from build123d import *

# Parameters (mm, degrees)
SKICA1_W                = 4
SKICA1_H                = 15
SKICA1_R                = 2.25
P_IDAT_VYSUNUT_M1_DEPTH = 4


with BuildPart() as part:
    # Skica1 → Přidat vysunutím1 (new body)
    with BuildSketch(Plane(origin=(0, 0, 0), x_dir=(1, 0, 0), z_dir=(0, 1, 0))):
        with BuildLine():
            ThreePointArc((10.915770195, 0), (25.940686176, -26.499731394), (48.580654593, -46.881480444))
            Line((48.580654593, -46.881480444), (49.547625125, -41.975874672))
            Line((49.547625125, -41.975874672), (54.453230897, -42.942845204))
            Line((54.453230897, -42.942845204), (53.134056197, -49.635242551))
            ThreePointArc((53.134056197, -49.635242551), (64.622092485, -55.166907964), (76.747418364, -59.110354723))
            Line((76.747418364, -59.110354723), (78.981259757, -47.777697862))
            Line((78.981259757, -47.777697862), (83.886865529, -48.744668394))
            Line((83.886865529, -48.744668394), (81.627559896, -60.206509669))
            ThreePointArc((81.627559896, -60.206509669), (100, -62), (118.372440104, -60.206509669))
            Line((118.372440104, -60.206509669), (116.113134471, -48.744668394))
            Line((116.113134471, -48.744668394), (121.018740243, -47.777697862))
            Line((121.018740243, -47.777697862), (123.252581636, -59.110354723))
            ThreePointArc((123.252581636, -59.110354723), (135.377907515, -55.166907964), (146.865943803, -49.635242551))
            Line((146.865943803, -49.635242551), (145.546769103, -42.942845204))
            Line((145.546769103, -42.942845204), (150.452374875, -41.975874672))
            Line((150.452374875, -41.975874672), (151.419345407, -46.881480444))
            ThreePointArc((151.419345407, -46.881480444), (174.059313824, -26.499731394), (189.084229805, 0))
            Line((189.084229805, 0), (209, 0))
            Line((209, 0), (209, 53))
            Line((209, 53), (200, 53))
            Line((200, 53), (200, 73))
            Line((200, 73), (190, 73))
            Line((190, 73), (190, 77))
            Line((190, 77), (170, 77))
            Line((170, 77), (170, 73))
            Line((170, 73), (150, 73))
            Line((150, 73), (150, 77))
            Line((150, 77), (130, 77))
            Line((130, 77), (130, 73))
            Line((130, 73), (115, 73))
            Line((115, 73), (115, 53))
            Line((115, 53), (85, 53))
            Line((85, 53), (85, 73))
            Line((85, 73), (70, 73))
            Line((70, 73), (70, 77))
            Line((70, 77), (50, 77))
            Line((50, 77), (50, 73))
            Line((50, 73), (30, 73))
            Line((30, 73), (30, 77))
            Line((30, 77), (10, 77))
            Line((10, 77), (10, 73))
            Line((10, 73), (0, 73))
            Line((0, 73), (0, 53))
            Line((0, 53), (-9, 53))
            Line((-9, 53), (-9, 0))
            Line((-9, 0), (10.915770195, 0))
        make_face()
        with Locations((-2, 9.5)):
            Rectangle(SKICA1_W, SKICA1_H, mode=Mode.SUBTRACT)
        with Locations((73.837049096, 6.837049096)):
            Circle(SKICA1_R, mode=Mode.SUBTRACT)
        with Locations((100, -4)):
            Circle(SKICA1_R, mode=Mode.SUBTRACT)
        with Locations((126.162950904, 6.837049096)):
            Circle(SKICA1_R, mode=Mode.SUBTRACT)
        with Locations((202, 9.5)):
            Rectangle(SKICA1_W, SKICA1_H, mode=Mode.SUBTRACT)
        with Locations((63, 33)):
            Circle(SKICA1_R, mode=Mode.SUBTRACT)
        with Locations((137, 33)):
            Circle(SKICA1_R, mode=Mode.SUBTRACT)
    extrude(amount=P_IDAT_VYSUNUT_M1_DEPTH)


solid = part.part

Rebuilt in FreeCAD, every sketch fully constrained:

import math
import FreeCAD as App
import Part
import Sketcher


def add_polygon(sketch, points):
    """Adds a closed chain of lines whose ends are joined by coincident constraints."""
    first, n = sketch.GeometryCount, len(points)
    for a, b in zip(points, points[1:] + points[:1]):
        sketch.addGeometry(Part.LineSegment(App.Vector(*a, 0), App.Vector(*b, 0)), False)
    for i in range(n):
        sketch.addConstraint(Sketcher.Constraint("Coincident", first + i, 2, first + (i + 1) % n, 1))

doc = App.newDocument("Part")
params = doc.addObject("Spreadsheet::Sheet", "Params")
for row, (alias, value) in enumerate([
    ("sketch1_radius", "95 mm"),
    ("sketch1_diameter", "4.5 mm"),
    ("sketch1_width", "9 mm"),
    ("sketch1_width2", "10 mm"),
    ("sketch1_width3", "20 mm"),
    ("pad1_length", "4 mm"),
], start=1):
    params.set(f"A{row}", alias)
    params.set(f"B{row}", "=" + value)
    params.setAlias(f"B{row}", alias)

body = doc.addObject("PartDesign::Body", "Body")

sketch1 = doc.addObject("Sketcher::SketchObject", "Sketch")
body.addObject(sketch1)
sketch1.AttachmentSupport = (doc.XZ_Plane, [""])
sketch1.MapMode = "FlatFace"
sketch1.addGeometry(Part.ArcOfCircle(Part.Circle(App.Vector(100, -33, 0), App.Vector(0, 0, 1), 95), math.radians(123), math.radians(160)), False)
sketch1.addGeometry(Part.LineSegment(App.Vector(48.6, 46.9, 0), App.Vector(49.5, 42, 0)), False)
sketch1.addGeometry(Part.LineSegment(App.Vector(49.5, 42, 0), App.Vector(54.5, 42.9, 0)), False)
sketch1.addGeometry(Part.LineSegment(App.Vector(54.5, 42.9, 0), App.Vector(53.1, 49.6, 0)), False)
sketch1.addGeometry(Part.ArcOfCircle(Part.Circle(App.Vector(100, -33, 0), App.Vector(0, 0, 1), 95), math.radians(104.17), math.radians(119.56)), False)
sketch1.addGeometry(Part.LineSegment(App.Vector(76.7, 59.1, 0), App.Vector(79, 47.8, 0)), False)
sketch1.addGeometry(Part.LineSegment(App.Vector(79, 47.8, 0), App.Vector(83.9, 48.7, 0)), False)
sketch1.addGeometry(Part.LineSegment(App.Vector(83.9, 48.7, 0), App.Vector(81.6, 60.2, 0)), False)
sketch1.addGeometry(Part.ArcOfCircle(Part.Circle(App.Vector(100, -33, 0), App.Vector(0, 0, 1), 95), math.radians(79), math.radians(101)), False)
sketch1.addGeometry(Part.LineSegment(App.Vector(118.4, 60.2, 0), App.Vector(116.1, 48.7, 0)), False)
sketch1.addGeometry(Part.LineSegment(App.Vector(116.1, 48.7, 0), App.Vector(121, 47.8, 0)), False)
sketch1.addGeometry(Part.LineSegment(App.Vector(121, 47.8, 0), App.Vector(123.3, 59.1, 0)), False)
sketch1.addGeometry(Part.ArcOfCircle(Part.Circle(App.Vector(100, -33, 0), App.Vector(0, 0, 1), 95), math.radians(60.44), math.radians(75.83)), False)
sketch1.addGeometry(Part.LineSegment(App.Vector(146.9, 49.6, 0), App.Vector(145.5, 42.9, 0)), False)
sketch1.addGeometry(Part.LineSegment(App.Vector(145.5, 42.9, 0), App.Vector(150.5, 42, 0)), False)
sketch1.addGeometry(Part.LineSegment(App.Vector(150.5, 42, 0), App.Vector(151.4, 46.9, 0)), False)
sketch1.addGeometry(Part.ArcOfCircle(Part.Circle(App.Vector(100, -33, 0), App.Vector(0, 0, 1), 95), math.radians(20), math.radians(57)), False)
sketch1.addGeometry(Part.LineSegment(App.Vector(189.1, 0, 0), App.Vector(209, 0, 0)), False)
sketch1.addGeometry(Part.LineSegment(App.Vector(209, 0, 0), App.Vector(209, -53, 0)), False)
sketch1.addGeometry(Part.LineSegment(App.Vector(209, -53, 0), App.Vector(200, -53, 0)), False)
sketch1.addGeometry(Part.LineSegment(App.Vector(200, -53, 0), App.Vector(200, -73, 0)), False)
sketch1.addGeometry(Part.LineSegment(App.Vector(200, -73, 0), App.Vector(190, -73, 0)), False)
sketch1.addGeometry(Part.LineSegment(App.Vector(190, -73, 0), App.Vector(190, -77, 0)), False)
sketch1.addGeometry(Part.LineSegment(App.Vector(190, -77, 0), App.Vector(170, -77, 0)), False)
sketch1.addGeometry(Part.LineSegment(App.Vector(170, -77, 0), App.Vector(170, -73, 0)), False)
sketch1.addGeometry(Part.LineSegment(App.Vector(170, -73, 0), App.Vector(150, -73, 0)), False)
sketch1.addGeometry(Part.LineSegment(App.Vector(150, -73, 0), App.Vector(150, -77, 0)), False)
sketch1.addGeometry(Part.LineSegment(App.Vector(150, -77, 0), App.Vector(130, -77, 0)), False)
sketch1.addGeometry(Part.LineSegment(App.Vector(130, -77, 0), App.Vector(130, -73, 0)), False)
sketch1.addGeometry(Part.LineSegment(App.Vector(130, -73, 0), App.Vector(115, -73, 0)), False)
sketch1.addGeometry(Part.LineSegment(App.Vector(115, -73, 0), App.Vector(115, -53, 0)), False)
sketch1.addGeometry(Part.LineSegment(App.Vector(115, -53, 0), App.Vector(85, -53, 0)), False)
sketch1.addGeometry(Part.LineSegment(App.Vector(85, -53, 0), App.Vector(85, -73, 0)), False)
sketch1.addGeometry(Part.LineSegment(App.Vector(85, -73, 0), App.Vector(70, -73, 0)), False)
sketch1.addGeometry(Part.LineSegment(App.Vector(70, -73, 0), App.Vector(70, -77, 0)), False)
sketch1.addGeometry(Part.LineSegment(App.Vector(70, -77, 0), App.Vector(50, -77, 0)), False)
sketch1.addGeometry(Part.LineSegment(App.Vector(50, -77, 0), App.Vector(50, -73, 0)), False)
sketch1.addGeometry(Part.LineSegment(App.Vector(50, -73, 0), App.Vector(30, -73, 0)), False)
sketch1.addGeometry(Part.LineSegment(App.Vector(30, -73, 0), App.Vector(30, -77, 0)), False)
sketch1.addGeometry(Part.LineSegment(App.Vector(30, -77, 0), App.Vector(10, -77, 0)), False)
sketch1.addGeometry(Part.LineSegment(App.Vector(10, -77, 0), App.Vector(10, -73, 0)), False)
sketch1.addGeometry(Part.LineSegment(App.Vector(10, -73, 0), App.Vector(0, -73, 0)), False)
sketch1.addGeometry(Part.LineSegment(App.Vector(0, -73, 0), App.Vector(0, -53, 0)), False)
sketch1.addGeometry(Part.LineSegment(App.Vector(0, -53, 0), App.Vector(-9, -53, 0)), False)
sketch1.addGeometry(Part.LineSegment(App.Vector(-9, -53, 0), App.Vector(-9, 0, 0)), False)
sketch1.addGeometry(Part.LineSegment(App.Vector(-9, 0, 0), App.Vector(10.9, 0, 0)), False)
add_polygon(sketch1, [(0, -2), (-4, -2), (-4, -17), (0, -17)])
sketch1.addGeometry(Part.Circle(App.Vector(73.8, -6.8, 0), App.Vector(0, 0, 1), 2.2), False)
sketch1.addGeometry(Part.Circle(App.Vector(100, 4, 0), App.Vector(0, 0, 1), 2.2), False)
sketch1.addGeometry(Part.Circle(App.Vector(126.2, -6.8, 0), App.Vector(0, 0, 1), 2.2), False)
add_polygon(sketch1, [(204, -2), (200, -2), (200, -17), (204, -17)])
sketch1.addGeometry(Part.Circle(App.Vector(63, -33, 0), App.Vector(0, 0, 1), 2.2), False)
sketch1.addGeometry(Part.Circle(App.Vector(137, -33, 0), App.Vector(0, 0, 1), 2.2), False)
sketch1.addConstraint([
    Sketcher.Constraint("Coincident", 0, 1, 1, 1),
    Sketcher.Constraint("Coincident", 1, 2, 2, 1),
    Sketcher.Constraint("Coincident", 2, 2, 3, 1),
    Sketcher.Constraint("Coincident", 3, 2, 4, 2),
    Sketcher.Constraint("Coincident", 4, 1, 5, 1),
    Sketcher.Constraint("Coincident", 5, 2, 6, 1),
    Sketcher.Constraint("Coincident", 6, 2, 7, 1),
    Sketcher.Constraint("Coincident", 7, 2, 8, 2),
    Sketcher.Constraint("Coincident", 8, 1, 9, 1),
    Sketcher.Constraint("Coincident", 9, 2, 10, 1),
    Sketcher.Constraint("Coincident", 10, 2, 11, 1),
    Sketcher.Constraint("Coincident", 11, 2, 12, 2),
    Sketcher.Constraint("Coincident", 12, 1, 13, 1),
    Sketcher.Constraint("Coincident", 13, 2, 14, 1),
    Sketcher.Constraint("Coincident", 14, 2, 15, 1),
    Sketcher.Constraint("Coincident", 15, 2, 16, 2),
    Sketcher.Constraint("Coincident", 16, 1, 17, 1),
    Sketcher.Constraint("Coincident", 17, 2, 18, 1),
    Sketcher.Constraint("Coincident", 18, 2, 19, 1),
    Sketcher.Constraint("Coincident", 19, 2, 20, 1),
    Sketcher.Constraint("Coincident", 20, 2, 21, 1),
    Sketcher.Constraint("Coincident", 21, 2, 22, 1),
    Sketcher.Constraint("Coincident", 22, 2, 23, 1),
    Sketcher.Constraint("Coincident", 23, 2, 24, 1),
    Sketcher.Constraint("Coincident", 24, 2, 25, 1),
    Sketcher.Constraint("Coincident", 25, 2, 26, 1),
    Sketcher.Constraint("Coincident", 26, 2, 27, 1),
    Sketcher.Constraint("Coincident", 27, 2, 28, 1),
    Sketcher.Constraint("Coincident", 28, 2, 29, 1),
    Sketcher.Constraint("Coincident", 29, 2, 30, 1),
    Sketcher.Constraint("Coincident", 30, 2, 31, 1),
    Sketcher.Constraint("Coincident", 31, 2, 32, 1),
    Sketcher.Constraint("Coincident", 32, 2, 33, 1),
    Sketcher.Constraint("Coincident", 33, 2, 34, 1),
    Sketcher.Constraint("Coincident", 34, 2, 35, 1),
    Sketcher.Constraint("Coincident", 35, 2, 36, 1),
    Sketcher.Constraint("Coincident", 36, 2, 37, 1),
    Sketcher.Constraint("Coincident", 37, 2, 38, 1),
    Sketcher.Constraint("Coincident", 38, 2, 39, 1),
    Sketcher.Constraint("Coincident", 39, 2, 40, 1),
    Sketcher.Constraint("Coincident", 40, 2, 41, 1),
    Sketcher.Constraint("Coincident", 41, 2, 42, 1),
    Sketcher.Constraint("Coincident", 42, 2, 43, 1),
    Sketcher.Constraint("Coincident", 43, 2, 44, 1),
    Sketcher.Constraint("Coincident", 44, 2, 45, 1),
    Sketcher.Constraint("Coincident", 45, 2, 0, 2),
    Sketcher.Constraint("Horizontal", 17),
    Sketcher.Constraint("Vertical", 18),
    Sketcher.Constraint("Horizontal", 19),
    Sketcher.Constraint("Vertical", 20),
    Sketcher.Constraint("Horizontal", 21),
    Sketcher.Constraint("Vertical", 22),
    Sketcher.Constraint("Horizontal", 23),
    Sketcher.Constraint("Vertical", 24),
    Sketcher.Constraint("Horizontal", 25),
    Sketcher.Constraint("Vertical", 26),
    Sketcher.Constraint("Horizontal", 27),
    Sketcher.Constraint("Vertical", 28),
    Sketcher.Constraint("Horizontal", 29),
    Sketcher.Constraint("Vertical", 30),
    Sketcher.Constraint("Horizontal", 31),
    Sketcher.Constraint("Vertical", 32),
    Sketcher.Constraint("Horizontal", 33),
    Sketcher.Constraint("Vertical", 34),
    Sketcher.Constraint("Horizontal", 35),
    Sketcher.Constraint("Vertical", 36),
    Sketcher.Constraint("Horizontal", 37),
    Sketcher.Constraint("Vertical", 38),
    Sketcher.Constraint("Horizontal", 39),
    Sketcher.Constraint("Vertical", 40),
    Sketcher.Constraint("Horizontal", 41),
    Sketcher.Constraint("Vertical", 42),
    Sketcher.Constraint("Horizontal", 43),
    Sketcher.Constraint("Vertical", 44),
    Sketcher.Constraint("Horizontal", 45),
    Sketcher.Constraint("Horizontal", 46),
    Sketcher.Constraint("Vertical", 47),
    Sketcher.Constraint("Horizontal", 48),
    Sketcher.Constraint("Vertical", 49),
    Sketcher.Constraint("Horizontal", 53),
    Sketcher.Constraint("Vertical", 54),
    Sketcher.Constraint("Horizontal", 55),
    Sketcher.Constraint("Vertical", 56),
    Sketcher.Constraint("Coincident", 4, 3, 0, 3),
    Sketcher.Constraint("Coincident", 8, 3, 0, 3),
    Sketcher.Constraint("Coincident", 12, 3, 0, 3),
    Sketcher.Constraint("Coincident", 16, 3, 0, 3),
    Sketcher.Constraint("Equal", 0, 4),
    Sketcher.Constraint("Equal", 4, 8),
    Sketcher.Constraint("Equal", 8, 12),
    Sketcher.Constraint("Equal", 12, 16),
    Sketcher.Constraint("Equal", 50, 51),
    Sketcher.Constraint("Equal", 51, 52),
    Sketcher.Constraint("Equal", 52, 57),
    Sketcher.Constraint("Equal", 57, 58),
    Sketcher.Constraint("PointOnObject", 16, 1, -1),
    Sketcher.Constraint("PointOnObject", 41, 2, -2),
    Sketcher.Constraint("PointOnObject", 44, 2, -1),
    Sketcher.Constraint("PointOnObject", 48, 2, -2),
    Sketcher.Constraint("Perpendicular", 1, 2),
    Sketcher.Constraint("Perpendicular", 2, 3),
    Sketcher.Constraint("Parallel", 3, 5),
    Sketcher.Constraint("Perpendicular", 5, 6),
    Sketcher.Constraint("Perpendicular", 6, 7),
    Sketcher.Constraint("Perpendicular", 9, 10),
    Sketcher.Constraint("Perpendicular", 10, 11),
    Sketcher.Constraint("Parallel", 11, 13),
    Sketcher.Constraint("Perpendicular", 13, 14),
    Sketcher.Constraint("Perpendicular", 14, 15),
    Sketcher.Constraint("Horizontal", 50, 3, 52, 3),
    Sketcher.Constraint("Horizontal", 16, 3, 57, 3),
    Sketcher.Constraint("Horizontal", 57, 3, 58, 3),
    Sketcher.Constraint("Horizontal", 7, 2, 8, 1),
    Sketcher.Constraint("Horizontal", 6, 2, 9, 2),
    Sketcher.Constraint("Horizontal", 5, 2, 10, 2),
    Sketcher.Constraint("Horizontal", 4, 1, 11, 2),
    Sketcher.Constraint("Horizontal", 3, 2, 12, 1),
    Sketcher.Constraint("Horizontal", 2, 2, 13, 2),
    Sketcher.Constraint("Horizontal", 1, 2, 14, 2),
    Sketcher.Constraint("Horizontal", 21, 2, 24, 2),
    Sketcher.Constraint("Horizontal", 23, 2, 26, 2),
    Sketcher.Constraint("Horizontal", 25, 2, 28, 2),
    Sketcher.Constraint("Horizontal", 19, 2, 30, 2),
    Sketcher.Constraint("Horizontal", 29, 2, 32, 2),
    Sketcher.Constraint("Horizontal", 27, 2, 34, 2),
    Sketcher.Constraint("Horizontal", 33, 2, 36, 2),
    Sketcher.Constraint("Horizontal", 35, 2, 38, 2),
    Sketcher.Constraint("Horizontal", 37, 2, 40, 2),
    Sketcher.Constraint("Horizontal", 31, 2, 42, 2),
    Sketcher.Constraint("Horizontal", 49, 2, 53, 2),
    Sketcher.Constraint("Horizontal", 48, 2, 54, 2),
    Sketcher.Constraint("Vertical", 16, 3, 51, 3),
    Sketcher.Constraint("Vertical", 20, 2, 53, 2),
    Sketcher.Constraint("Equal", 23, 25),
    Sketcher.Constraint("Equal", 25, 27),
    Sketcher.Constraint("Equal", 29, 33),
    Sketcher.Constraint("Equal", 27, 35),
    Sketcher.Constraint("Equal", 35, 37),
    Sketcher.Constraint("Equal", 37, 39),
    Sketcher.Constraint("Equal", 21, 41),
    Sketcher.Constraint("Equal", 19, 43),
    Sketcher.Constraint("Equal", 17, 45),
    Sketcher.Constraint("Equal", 48, 53),
    Sketcher.Constraint("Equal", 39, 20),
    Sketcher.Constraint("Equal", 55, 22),
    Sketcher.Constraint("Equal", 33, 47),
    Sketcher.Constraint("Equal", 1, 2),
    Sketcher.Constraint("Equal", 2, 6),
    Sketcher.Constraint("Radius", 0, 95.0),
    Sketcher.Constraint("Diameter", 50, 4.5),
    Sketcher.Constraint("DistanceX", 19, 2, 19, 1, 9.0),
    Sketcher.Constraint("DistanceX", 21, 2, 21, 1, 10.0),
    Sketcher.Constraint("DistanceX", 23, 2, 23, 1, 20.0),
    Sketcher.Constraint("DistanceX", 29, 2, 29, 1, 15.0),
    Sketcher.Constraint("DistanceX", 31, 2, 31, 1, 30.0),
    Sketcher.Constraint("DistanceX", 46, 2, 46, 1, 4.0),
    Sketcher.Constraint("DistanceY", 18, 2, 18, 1, 53.0),
    Sketcher.Constraint("Distance", 1, 5.0),
    Sketcher.Constraint("DistanceY", 0, 3, -1, 1, 33.0),
    Sketcher.Constraint("DistanceY", -1, 1, 51, 3, 4.0),
    Sketcher.Constraint("DistanceX", -1, 1, 57, 3, 63.0),
    Sketcher.Constraint("DistanceX", -1, 1, 58, 3, 137.0),
    Sketcher.Constraint("DistanceY", 46, 2, -1, 1, 2.0),
    Sketcher.Constraint("Distance", 5, 11.550721),
    Sketcher.Constraint("Distance", 7, 11.682391),
    Sketcher.Constraint("DistanceX", -1, 1, 50, 3, 73.837049),
    Sketcher.Constraint("DistanceY", 50, 3, -1, 1, 6.837049),
    Sketcher.Constraint("DistanceX", -1, 1, 52, 3, 126.162951),
    Sketcher.Constraint("DistanceY", -1, 1, 0, 1, 46.88148),
    Sketcher.Constraint("DistanceX", -1, 1, 2, 2, 54.453231),
])
sketch1.setExpression("Constraints[156]", "Params.sketch1_radius")
sketch1.setExpression("Constraints[157]", "Params.sketch1_diameter")
sketch1.setExpression("Constraints[158]", "Params.sketch1_width")
sketch1.setExpression("Constraints[159]", "Params.sketch1_width2")
sketch1.setExpression("Constraints[160]", "Params.sketch1_width3")
pad1 = doc.addObject("PartDesign::Pad", "Pad")
body.addObject(pad1)
pad1.Profile = sketch1
pad1.setExpression("Length", "Params.pad1_length")
pad1.Reversed = True

doc.recompute()
